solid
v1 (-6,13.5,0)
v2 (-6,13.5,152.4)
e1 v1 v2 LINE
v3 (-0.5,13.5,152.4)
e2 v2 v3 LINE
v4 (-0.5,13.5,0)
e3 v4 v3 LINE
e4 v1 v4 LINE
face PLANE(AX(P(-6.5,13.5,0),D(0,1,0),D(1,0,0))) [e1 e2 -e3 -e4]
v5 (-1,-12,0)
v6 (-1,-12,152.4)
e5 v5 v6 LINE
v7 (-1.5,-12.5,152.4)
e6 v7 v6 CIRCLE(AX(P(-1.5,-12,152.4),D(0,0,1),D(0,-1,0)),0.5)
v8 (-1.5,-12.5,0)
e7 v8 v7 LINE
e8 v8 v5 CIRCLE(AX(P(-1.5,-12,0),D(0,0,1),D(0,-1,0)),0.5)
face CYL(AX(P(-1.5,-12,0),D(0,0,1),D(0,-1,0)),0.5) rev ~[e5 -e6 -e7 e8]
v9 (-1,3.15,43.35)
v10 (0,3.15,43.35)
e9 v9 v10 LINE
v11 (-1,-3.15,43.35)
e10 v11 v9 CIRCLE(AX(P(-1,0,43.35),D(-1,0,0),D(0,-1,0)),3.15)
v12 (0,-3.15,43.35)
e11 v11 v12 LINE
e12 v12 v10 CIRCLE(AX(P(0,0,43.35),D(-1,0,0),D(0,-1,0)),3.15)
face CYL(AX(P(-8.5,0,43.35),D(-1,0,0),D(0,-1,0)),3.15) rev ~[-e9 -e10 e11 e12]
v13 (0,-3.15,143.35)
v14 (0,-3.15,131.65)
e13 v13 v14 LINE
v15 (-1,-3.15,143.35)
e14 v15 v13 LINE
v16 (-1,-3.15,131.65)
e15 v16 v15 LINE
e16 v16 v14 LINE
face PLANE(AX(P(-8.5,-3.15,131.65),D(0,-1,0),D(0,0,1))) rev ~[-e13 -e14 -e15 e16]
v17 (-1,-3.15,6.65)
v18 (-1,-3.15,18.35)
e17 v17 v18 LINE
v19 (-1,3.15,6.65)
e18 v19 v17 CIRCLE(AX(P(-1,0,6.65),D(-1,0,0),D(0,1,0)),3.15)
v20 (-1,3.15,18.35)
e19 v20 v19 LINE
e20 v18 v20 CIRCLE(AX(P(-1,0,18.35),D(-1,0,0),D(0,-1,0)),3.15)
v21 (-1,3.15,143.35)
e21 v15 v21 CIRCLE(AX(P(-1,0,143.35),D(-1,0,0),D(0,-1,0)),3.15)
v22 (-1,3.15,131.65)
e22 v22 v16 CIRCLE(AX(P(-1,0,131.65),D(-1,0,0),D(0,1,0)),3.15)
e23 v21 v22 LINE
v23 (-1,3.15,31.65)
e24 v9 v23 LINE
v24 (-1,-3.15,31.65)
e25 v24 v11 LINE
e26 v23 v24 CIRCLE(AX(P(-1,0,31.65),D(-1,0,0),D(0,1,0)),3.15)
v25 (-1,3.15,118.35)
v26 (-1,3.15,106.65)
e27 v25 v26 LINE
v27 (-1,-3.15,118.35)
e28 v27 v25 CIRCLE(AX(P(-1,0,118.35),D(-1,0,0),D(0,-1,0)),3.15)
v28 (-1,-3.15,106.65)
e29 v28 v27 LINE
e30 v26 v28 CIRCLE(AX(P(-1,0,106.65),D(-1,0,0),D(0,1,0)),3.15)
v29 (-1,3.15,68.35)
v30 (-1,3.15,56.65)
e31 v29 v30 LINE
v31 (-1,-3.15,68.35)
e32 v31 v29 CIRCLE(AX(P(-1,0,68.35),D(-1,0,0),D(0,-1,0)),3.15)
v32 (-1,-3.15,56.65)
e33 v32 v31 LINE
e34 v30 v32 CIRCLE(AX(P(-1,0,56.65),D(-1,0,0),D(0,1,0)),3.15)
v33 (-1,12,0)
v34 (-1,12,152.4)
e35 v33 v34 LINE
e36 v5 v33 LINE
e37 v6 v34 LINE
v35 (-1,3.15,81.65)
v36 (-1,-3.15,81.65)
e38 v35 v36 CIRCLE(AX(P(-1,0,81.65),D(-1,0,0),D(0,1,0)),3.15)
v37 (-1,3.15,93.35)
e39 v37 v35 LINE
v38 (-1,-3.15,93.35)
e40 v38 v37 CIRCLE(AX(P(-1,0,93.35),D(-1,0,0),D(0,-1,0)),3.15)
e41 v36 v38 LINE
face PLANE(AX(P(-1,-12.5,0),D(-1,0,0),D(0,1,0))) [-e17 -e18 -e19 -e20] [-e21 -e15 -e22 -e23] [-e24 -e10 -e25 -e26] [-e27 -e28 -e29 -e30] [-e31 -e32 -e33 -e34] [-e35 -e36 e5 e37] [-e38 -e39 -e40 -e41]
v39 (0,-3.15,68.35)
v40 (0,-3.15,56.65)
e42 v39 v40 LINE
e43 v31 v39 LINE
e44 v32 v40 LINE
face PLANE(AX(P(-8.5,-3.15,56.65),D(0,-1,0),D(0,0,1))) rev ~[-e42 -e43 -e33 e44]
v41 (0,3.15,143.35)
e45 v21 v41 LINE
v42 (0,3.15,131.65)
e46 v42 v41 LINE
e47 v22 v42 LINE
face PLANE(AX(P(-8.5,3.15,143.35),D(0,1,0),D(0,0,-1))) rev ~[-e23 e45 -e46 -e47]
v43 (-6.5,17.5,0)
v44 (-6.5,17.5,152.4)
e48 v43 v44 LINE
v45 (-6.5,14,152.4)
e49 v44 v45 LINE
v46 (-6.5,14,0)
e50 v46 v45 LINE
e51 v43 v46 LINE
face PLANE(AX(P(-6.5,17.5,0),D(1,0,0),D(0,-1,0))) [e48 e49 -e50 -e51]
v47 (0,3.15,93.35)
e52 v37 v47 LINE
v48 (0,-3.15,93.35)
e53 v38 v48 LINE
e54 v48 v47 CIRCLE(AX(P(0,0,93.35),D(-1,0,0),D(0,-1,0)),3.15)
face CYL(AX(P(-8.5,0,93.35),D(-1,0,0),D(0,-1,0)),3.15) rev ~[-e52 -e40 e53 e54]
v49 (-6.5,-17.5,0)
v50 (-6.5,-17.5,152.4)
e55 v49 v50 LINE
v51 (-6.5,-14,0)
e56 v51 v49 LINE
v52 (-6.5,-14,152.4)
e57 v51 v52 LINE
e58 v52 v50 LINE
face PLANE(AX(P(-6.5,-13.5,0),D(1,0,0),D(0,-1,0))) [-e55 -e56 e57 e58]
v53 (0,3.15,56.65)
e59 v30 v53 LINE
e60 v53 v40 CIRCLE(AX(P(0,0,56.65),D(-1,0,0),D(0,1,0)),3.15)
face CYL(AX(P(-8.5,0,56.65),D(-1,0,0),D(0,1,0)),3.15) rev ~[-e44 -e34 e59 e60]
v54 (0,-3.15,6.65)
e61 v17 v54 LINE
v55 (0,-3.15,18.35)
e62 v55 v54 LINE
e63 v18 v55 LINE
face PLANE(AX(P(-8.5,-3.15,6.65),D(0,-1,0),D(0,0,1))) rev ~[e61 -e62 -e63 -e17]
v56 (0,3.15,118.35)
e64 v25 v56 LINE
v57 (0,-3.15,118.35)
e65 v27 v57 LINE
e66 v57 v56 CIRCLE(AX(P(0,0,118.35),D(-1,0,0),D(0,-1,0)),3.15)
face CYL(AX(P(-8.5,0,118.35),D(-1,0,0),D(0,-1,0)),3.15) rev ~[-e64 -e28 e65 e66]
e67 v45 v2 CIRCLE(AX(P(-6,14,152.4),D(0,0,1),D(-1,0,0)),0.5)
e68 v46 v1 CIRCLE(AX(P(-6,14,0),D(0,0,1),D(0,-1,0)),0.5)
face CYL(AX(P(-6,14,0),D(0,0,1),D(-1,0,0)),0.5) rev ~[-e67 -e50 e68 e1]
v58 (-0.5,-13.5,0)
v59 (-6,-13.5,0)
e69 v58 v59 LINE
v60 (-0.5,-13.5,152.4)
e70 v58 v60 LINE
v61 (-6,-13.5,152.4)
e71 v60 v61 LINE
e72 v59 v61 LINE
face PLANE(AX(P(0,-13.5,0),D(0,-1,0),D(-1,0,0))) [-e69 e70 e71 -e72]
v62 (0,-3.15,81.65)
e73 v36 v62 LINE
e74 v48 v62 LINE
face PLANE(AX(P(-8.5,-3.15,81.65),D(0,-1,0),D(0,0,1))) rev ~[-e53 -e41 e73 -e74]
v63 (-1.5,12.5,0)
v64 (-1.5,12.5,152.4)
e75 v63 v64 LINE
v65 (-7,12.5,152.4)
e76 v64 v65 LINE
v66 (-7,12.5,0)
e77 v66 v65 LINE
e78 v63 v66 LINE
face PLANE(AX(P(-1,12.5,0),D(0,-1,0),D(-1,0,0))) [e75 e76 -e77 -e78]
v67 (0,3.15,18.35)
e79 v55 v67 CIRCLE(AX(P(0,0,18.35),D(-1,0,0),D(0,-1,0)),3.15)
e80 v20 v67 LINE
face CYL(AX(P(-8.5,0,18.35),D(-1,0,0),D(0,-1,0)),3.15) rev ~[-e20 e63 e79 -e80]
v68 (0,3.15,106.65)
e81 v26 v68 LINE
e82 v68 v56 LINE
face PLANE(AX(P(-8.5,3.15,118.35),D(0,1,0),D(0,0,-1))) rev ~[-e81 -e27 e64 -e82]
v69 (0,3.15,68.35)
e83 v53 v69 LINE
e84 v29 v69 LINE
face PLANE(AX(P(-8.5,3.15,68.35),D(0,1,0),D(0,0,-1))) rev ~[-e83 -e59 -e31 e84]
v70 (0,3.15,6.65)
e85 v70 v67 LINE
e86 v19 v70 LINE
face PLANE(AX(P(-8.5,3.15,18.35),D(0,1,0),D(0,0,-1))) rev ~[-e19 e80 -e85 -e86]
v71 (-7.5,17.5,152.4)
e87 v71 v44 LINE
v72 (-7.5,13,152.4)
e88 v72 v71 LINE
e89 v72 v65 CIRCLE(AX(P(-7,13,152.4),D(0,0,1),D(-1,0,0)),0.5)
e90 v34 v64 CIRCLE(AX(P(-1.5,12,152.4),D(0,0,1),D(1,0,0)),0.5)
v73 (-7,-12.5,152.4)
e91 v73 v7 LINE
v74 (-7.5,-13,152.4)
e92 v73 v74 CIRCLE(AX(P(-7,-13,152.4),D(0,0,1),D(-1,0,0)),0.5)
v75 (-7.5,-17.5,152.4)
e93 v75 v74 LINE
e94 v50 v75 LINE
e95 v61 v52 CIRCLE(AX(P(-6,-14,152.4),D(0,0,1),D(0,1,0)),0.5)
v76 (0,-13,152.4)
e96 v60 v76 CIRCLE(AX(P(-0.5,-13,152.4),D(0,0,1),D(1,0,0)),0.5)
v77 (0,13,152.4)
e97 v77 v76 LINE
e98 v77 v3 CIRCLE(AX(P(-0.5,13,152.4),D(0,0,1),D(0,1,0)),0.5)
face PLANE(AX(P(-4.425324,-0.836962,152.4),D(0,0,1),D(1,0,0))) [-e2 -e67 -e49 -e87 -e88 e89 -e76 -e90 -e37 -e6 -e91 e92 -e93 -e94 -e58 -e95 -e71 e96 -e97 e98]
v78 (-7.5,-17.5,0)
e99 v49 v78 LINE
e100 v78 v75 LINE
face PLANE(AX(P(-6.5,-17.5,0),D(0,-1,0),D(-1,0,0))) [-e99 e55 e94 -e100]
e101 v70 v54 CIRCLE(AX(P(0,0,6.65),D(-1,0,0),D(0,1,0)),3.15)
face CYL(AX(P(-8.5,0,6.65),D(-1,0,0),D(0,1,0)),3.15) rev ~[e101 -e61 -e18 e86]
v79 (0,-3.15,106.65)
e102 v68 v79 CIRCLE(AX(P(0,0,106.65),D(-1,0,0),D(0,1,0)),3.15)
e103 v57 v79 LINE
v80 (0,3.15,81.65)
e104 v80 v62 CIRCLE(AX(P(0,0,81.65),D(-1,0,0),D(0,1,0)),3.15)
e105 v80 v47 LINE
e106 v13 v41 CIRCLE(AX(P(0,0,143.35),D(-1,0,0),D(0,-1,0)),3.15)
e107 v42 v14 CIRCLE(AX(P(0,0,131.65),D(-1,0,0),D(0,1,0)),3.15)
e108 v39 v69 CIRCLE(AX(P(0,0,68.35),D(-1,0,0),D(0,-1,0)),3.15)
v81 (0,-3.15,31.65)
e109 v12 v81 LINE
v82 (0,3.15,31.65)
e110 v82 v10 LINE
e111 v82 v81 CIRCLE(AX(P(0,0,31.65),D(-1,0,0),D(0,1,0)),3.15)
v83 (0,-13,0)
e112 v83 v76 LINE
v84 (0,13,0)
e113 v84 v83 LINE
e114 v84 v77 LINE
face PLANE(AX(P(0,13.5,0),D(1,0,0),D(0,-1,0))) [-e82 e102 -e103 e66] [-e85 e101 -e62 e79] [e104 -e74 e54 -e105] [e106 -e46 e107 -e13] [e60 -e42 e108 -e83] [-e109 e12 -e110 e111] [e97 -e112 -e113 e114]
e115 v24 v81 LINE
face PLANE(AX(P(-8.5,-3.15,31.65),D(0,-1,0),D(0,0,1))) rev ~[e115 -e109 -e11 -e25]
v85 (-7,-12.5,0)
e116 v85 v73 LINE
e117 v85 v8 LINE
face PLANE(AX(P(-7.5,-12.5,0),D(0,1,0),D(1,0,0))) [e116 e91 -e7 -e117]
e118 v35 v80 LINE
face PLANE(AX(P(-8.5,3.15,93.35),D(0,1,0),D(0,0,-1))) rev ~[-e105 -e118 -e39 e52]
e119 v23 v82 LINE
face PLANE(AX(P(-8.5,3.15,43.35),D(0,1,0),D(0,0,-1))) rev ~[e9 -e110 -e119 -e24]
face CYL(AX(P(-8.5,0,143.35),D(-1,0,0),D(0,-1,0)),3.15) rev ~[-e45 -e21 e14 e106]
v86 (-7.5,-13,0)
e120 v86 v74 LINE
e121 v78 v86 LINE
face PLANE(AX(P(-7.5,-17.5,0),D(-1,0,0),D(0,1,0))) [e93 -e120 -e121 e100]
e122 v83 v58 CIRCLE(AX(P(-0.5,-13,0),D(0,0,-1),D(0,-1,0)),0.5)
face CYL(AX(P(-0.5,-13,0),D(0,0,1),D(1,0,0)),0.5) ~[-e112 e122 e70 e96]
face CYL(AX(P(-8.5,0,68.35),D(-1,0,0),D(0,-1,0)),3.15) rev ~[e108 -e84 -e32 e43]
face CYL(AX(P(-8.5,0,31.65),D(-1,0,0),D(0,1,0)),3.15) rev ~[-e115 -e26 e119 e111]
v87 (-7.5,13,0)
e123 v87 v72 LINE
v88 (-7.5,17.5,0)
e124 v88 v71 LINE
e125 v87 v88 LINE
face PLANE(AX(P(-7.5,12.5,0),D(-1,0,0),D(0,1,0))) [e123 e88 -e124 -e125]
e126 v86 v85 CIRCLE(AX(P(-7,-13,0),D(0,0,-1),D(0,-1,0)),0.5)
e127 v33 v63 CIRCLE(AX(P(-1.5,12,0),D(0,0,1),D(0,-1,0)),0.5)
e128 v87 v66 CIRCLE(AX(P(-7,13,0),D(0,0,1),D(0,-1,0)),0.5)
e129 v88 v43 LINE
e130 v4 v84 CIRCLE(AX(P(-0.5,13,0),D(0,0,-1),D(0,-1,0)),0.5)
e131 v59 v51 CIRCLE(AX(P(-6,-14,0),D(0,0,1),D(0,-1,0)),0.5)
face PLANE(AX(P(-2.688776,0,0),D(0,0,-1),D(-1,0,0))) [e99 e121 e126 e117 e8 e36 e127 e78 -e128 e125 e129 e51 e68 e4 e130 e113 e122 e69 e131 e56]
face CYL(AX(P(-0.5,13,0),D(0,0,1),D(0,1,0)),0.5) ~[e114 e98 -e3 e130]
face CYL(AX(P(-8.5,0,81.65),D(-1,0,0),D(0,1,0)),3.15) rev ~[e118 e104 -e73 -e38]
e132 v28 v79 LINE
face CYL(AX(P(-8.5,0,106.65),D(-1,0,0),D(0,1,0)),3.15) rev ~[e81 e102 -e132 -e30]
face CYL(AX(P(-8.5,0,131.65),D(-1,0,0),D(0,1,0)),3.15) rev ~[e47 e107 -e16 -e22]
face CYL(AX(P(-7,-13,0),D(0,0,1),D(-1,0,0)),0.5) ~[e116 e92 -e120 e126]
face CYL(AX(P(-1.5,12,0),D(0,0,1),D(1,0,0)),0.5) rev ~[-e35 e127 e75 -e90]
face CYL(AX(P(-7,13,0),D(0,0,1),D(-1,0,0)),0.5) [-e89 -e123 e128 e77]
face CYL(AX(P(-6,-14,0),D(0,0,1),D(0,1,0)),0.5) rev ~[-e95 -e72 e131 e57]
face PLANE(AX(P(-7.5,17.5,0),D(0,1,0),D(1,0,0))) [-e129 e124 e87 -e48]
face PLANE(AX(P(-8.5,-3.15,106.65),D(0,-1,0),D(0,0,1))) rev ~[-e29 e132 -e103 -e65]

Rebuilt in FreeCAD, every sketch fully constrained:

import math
import FreeCAD as App
import Part
import Sketcher

V = App.Vector
Q = App.Units.Quantity


def edges_at(feature, points):
    """Names of the edges that pass closest to the given points."""
    edges = feature.Shape.Edges
    near = lambda p: min(range(len(edges)), key=lambda i: edges[i].distToShape(Part.Vertex(*p))[0])
    return sorted({f"Edge{near(p) + 1}" for p in points})

doc = App.newDocument("Part")
body = doc.addObject("PartDesign::Body", "Body")

# Sketch on XY plane
sketch1 = body.newObject("Sketcher::SketchObject", "Sketch")
sketch1.AttachmentSupport = (doc.getObject("XY_Plane"), [""])
sketch1.MapMode = "FlatFace"
sketch1.addGeometry([
    Part.LineSegment(V(-6.5, 13.5, 0), V(-6.5, 17.5, 0)),  # 0
    Part.LineSegment(V(-6.5, 17.5, 0), V(-7.5, 17.5, 0)),  # 1
    Part.LineSegment(V(-7.5, 17.5, 0), V(-7.5, 12.5, 0)),  # 2
    Part.LineSegment(V(-7.5, 12.5, 0), V(-1, 12.5, 0)),  # 3
    Part.LineSegment(V(-1, 12.5, 0), V(-1, -12.5, 0)),  # 4
    Part.LineSegment(V(-1, -12.5, 0), V(-7.5, -12.5, 0)),  # 5
    Part.LineSegment(V(-7.5, -12.5, 0), V(-7.5, -17.5, 0)),  # 6
    Part.LineSegment(V(-7.5, -17.5, 0), V(-6.5, -17.5, 0)),  # 7
    Part.LineSegment(V(-6.5, -17.5, 0), V(-6.5, -13.5, 0)),  # 8
    Part.LineSegment(V(-6.5, -13.5, 0), V(0, -13.5, 0)),  # 9
    Part.LineSegment(V(0, -13.5, 0), V(0, 13.5, 0)),  # 10
    Part.LineSegment(V(0, 13.5, 0), V(-6.5, 13.5, 0)),  # 11
], False)
sketch1.addConstraint([
    Sketcher.Constraint("Coincident", 0, 2, 1, 1),
    Sketcher.Constraint("Coincident", 1, 2, 2, 1),
    Sketcher.Constraint("Coincident", 2, 2, 3, 1),
    Sketcher.Constraint("Coincident", 3, 2, 4, 1),
    Sketcher.Constraint("Coincident", 4, 2, 5, 1),
    Sketcher.Constraint("Coincident", 5, 2, 6, 1),
    Sketcher.Constraint("Coincident", 6, 2, 7, 1),
    Sketcher.Constraint("Coincident", 7, 2, 8, 1),
    Sketcher.Constraint("Coincident", 8, 2, 9, 1),
    Sketcher.Constraint("Coincident", 9, 2, 10, 1),
    Sketcher.Constraint("Coincident", 10, 2, 11, 1),
    Sketcher.Constraint("Coincident", 11, 2, 0, 1),
    Sketcher.Constraint("Vertical", 0),
    Sketcher.Constraint("Horizontal", 1),
    Sketcher.Constraint("Vertical", 2),
    Sketcher.Constraint("Horizontal", 3),
    Sketcher.Constraint("Vertical", 4),
    Sketcher.Constraint("Horizontal", 5),
    Sketcher.Constraint("Vertical", 6),
    Sketcher.Constraint("Horizontal", 7),
    Sketcher.Constraint("Vertical", 8),
    Sketcher.Constraint("Horizontal", 9),
    Sketcher.Constraint("Vertical", 10),
    Sketcher.Constraint("Horizontal", 11),
    Sketcher.Constraint("Symmetric", 9, 2, 10, 2, -1, 1),
    Sketcher.Constraint("Symmetric", 2, 2, 5, 2, -1),
    Sketcher.Constraint("Symmetric", 0, 2, 7, 2, -1),
    Sketcher.Constraint("Equal", 5, 9),
    Sketcher.Constraint("DistanceX", 1, 2, 1, 1, Q("1 mm")),
    Sketcher.Constraint("DistanceY", 0, 1, 0, 2, Q("4 mm")),
    Sketcher.Constraint("DistanceY", 2, 2, 2, 1, Q("5 mm")),
    Sketcher.Constraint("DistanceY", 4, 2, 4, 1, Q("25 mm")),
    Sketcher.Constraint("DistanceX", 3, 1, 3, 2, Q("6.5 mm")),
])
pad1 = body.newObject("PartDesign::Pad", "Pad")
pad1.Profile = sketch1
pad1.Length = 449.2625

# Sketch on YZ plane
sketch2 = body.newObject("Sketcher::SketchObject", "Sketch001")
sketch2.AttachmentSupport = (doc.getObject("YZ_Plane"), [""])
sketch2.MapMode = "FlatFace"
sketch2.AttachmentOffset = App.Placement(V(0, 0, -8.5), App.Rotation())
sketch2.addGeometry([
    Part.LineSegment(V(-3.1, 18.4, 0), V(-3.1, 6.7, 0)),
    Part.ArcOfCircle(Part.Circle(V(0, 6.7, 0), V(0, 0, 1), 3.1), math.radians(180), math.radians(360)),
    Part.LineSegment(V(3.1, 6.7, 0), V(3.1, 18.4, 0)),
    Part.ArcOfCircle(Part.Circle(V(0, 18.4, 0), V(0, 0, 1), 3.1), math.radians(0), math.radians(180)),
], False)
sketch2.addConstraint([
    Sketcher.Constraint("Tangent", 0, 2, 1, 1),
    Sketcher.Constraint("Tangent", 1, 2, 2, 1),
    Sketcher.Constraint("Tangent", 2, 2, 3, 1),
    Sketcher.Constraint("Tangent", 3, 2, 0, 1),
    Sketcher.Constraint("Vertical", 0),
    Sketcher.Constraint("Vertical", 2),
    Sketcher.Constraint("PointOnObject", 1, 3, -2),
    Sketcher.Constraint("Radius", 1, Q("3.15 mm")),
    Sketcher.Constraint("DistanceY", 0, 2, 0, 1, Q("11.7 mm")),
    Sketcher.Constraint("DistanceY", -1, 1, 1, 3, Q("6.65 mm")),
])
pocket1 = body.newObject("PartDesign::Pocket", "Pocket")
pocket1.Profile = sketch2
pocket1.Length = 9.5
pocket1.Reversed = True
doc.recompute()

linearpattern = body.newObject("PartDesign::LinearPattern", "LinearPattern")
linearpattern.Originals = [pocket1]
linearpattern.Direction = (doc.getObject("Z_Axis"), [""])
linearpattern.Mode = "offset"
linearpattern.Offset = 25
linearpattern.Occurrences = 18
body.Tip = linearpattern
doc.recompute()

fillet = body.newObject("PartDesign::Fillet", "Fillet")
fillet.Base = (linearpattern, edges_at(linearpattern, [
    (-6.5, 13.5, 224.631),
    (0, 13.5, 224.631),
    (0, -13.5, 224.631),
    (-6.5, -13.5, 224.631),
    (-7.5, -12.5, 224.631),
    (-1, -12.5, 224.631),
    (-1, 12.5, 224.631),
    (-7.5, 12.5, 224.631),
]))
fillet.Radius = 0.5

# Sketch on XY plane
sketch3 = body.newObject("Sketcher::SketchObject", "Sketch002")
sketch3.AttachmentSupport = (doc.getObject("XY_Plane"), [""])
sketch3.MapMode = "FlatFace"
sketch3.AttachmentOffset = App.Placement(V(0, 0, 449.2625), App.Rotation())
sketch3.addGeometry([
    Part.LineSegment(V(-16, 21, 0), V(-16, -23, 0)),
    Part.LineSegment(V(-16, -23, 0), V(7, -23, 0)),
    Part.LineSegment(V(7, -23, 0), V(7, 21, 0)),
    Part.LineSegment(V(7, 21, 0), V(-16, 21, 0)),
], False)
sketch3.addConstraint([
    Sketcher.Constraint("Coincident", 0, 2, 1, 1),
    Sketcher.Constraint("Coincident", 1, 2, 2, 1),
    Sketcher.Constraint("Coincident", 2, 2, 3, 1),
    Sketcher.Constraint("Coincident", 3, 2, 0, 1),
    Sketcher.Constraint("Vertical", 0),
    Sketcher.Constraint("Horizontal", 1),
    Sketcher.Constraint("Vertical", 2),
    Sketcher.Constraint("Horizontal", 3),
    Sketcher.Constraint("DistanceX", 1, 1, 1, 2, Q("23.532864 mm")),
    Sketcher.Constraint("DistanceY", 0, 2, 0, 1, Q("44.509442 mm")),
    Sketcher.Constraint("DistanceY", -1, 1, 2, 2, Q("21.417759 mm")),
    Sketcher.Constraint("DistanceX", 0, 2, -1, 1, Q("16.191756 mm")),
])
pocket2 = body.newObject("PartDesign::Pocket", "Pocket001")
pocket2.Profile = sketch3
pocket2.Length = 296.8625

doc.recompute()
